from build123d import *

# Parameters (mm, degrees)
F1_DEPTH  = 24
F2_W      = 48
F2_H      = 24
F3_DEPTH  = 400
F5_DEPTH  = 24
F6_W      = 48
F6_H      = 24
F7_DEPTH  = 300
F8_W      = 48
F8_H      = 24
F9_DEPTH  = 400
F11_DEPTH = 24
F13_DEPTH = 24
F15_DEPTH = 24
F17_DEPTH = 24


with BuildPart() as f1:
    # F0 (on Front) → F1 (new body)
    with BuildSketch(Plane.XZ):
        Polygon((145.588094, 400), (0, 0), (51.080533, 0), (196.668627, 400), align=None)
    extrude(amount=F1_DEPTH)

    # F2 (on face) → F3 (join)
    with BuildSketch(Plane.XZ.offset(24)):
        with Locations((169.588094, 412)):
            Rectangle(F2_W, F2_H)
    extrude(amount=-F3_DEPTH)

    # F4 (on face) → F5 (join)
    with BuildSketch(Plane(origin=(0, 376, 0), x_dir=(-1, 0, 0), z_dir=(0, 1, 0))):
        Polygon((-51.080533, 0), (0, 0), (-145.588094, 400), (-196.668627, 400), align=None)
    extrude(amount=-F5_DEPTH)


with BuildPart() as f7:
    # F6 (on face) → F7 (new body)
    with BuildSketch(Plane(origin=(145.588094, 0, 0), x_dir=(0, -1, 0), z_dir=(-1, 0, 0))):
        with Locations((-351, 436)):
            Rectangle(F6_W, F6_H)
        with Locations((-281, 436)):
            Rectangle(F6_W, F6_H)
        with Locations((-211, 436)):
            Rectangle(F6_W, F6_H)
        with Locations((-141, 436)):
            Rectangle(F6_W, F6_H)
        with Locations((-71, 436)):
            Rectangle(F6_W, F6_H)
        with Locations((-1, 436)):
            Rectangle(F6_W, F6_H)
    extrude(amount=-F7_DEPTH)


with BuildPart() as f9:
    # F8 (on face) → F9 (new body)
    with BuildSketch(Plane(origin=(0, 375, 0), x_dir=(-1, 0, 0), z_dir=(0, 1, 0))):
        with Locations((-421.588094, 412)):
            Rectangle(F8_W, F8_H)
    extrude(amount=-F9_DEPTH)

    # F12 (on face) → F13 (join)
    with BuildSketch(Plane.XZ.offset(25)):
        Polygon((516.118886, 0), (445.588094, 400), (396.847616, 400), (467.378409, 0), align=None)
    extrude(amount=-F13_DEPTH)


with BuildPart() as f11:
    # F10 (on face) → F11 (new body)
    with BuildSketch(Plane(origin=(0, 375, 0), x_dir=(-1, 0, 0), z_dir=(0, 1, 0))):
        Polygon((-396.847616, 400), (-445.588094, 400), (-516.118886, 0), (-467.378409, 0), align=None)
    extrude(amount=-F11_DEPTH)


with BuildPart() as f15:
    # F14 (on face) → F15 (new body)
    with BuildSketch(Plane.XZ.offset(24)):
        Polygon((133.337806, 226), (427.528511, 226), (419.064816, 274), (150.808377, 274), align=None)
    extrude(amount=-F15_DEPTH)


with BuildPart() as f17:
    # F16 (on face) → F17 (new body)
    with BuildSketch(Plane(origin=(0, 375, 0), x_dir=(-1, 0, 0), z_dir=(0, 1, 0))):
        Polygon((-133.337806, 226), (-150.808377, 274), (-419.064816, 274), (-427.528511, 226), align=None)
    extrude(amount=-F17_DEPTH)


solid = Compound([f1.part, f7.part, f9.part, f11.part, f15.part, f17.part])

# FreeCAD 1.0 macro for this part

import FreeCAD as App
import Part
import Sketcher
from FreeCAD import Vector
Q = App.Units.Quantity

doc = App.newDocument("Part")
body = doc.addObject("PartDesign::Body", "Body")

# Sketch on XZ plane
sketch1 = body.newObject("Sketcher::SketchObject", "Sketch")
sketch1.AttachmentSupport = (doc.getObject("XZ_Plane"), [""])
sketch1.MapMode = "FlatFace"
sketch1.addGeometry(Part.LineSegment(Vector(146, 400, 0), Vector(0, 0, 0)), False)
sketch1.addGeometry(Part.LineSegment(Vector(0, 0, 0), Vector(51, 0, 0)), False)
sketch1.addGeometry(Part.LineSegment(Vector(51, 0, 0), Vector(197, 400, 0)), False)
sketch1.addGeometry(Part.LineSegment(Vector(197, 400, 0), Vector(146, 400, 0)), False)
sketch1.addConstraint(Sketcher.Constraint("Coincident", 0, 2, 1, 1))
sketch1.addConstraint(Sketcher.Constraint("Coincident", 1, 2, 2, 1))
sketch1.addConstraint(Sketcher.Constraint("Coincident", 2, 2, 3, 1))
sketch1.addConstraint(Sketcher.Constraint("Coincident", 3, 2, 0, 1))
sketch1.addConstraint(Sketcher.Constraint("Horizontal", 1))
sketch1.addConstraint(Sketcher.Constraint("Horizontal", 3))
sketch1.addConstraint(Sketcher.Constraint("Coincident", 0, 2, -1, 1))
sketch1.addConstraint(Sketcher.Constraint("Parallel", 0, 2))
sketch1.addConstraint(Sketcher.Constraint("Angle", 0, Q("-110 deg")))
sketch1.addConstraint(Sketcher.Constraint("DistanceY", -1, 1, 2, 2, 400.0))
sketch1.addConstraint(Sketcher.Constraint("DistanceX", 1, 1, 1, 2, 51.080533))
pad1 = body.newObject("PartDesign::Pad", "Pad")
pad1.Profile = sketch1
pad1.Length = 24

# Sketch on XZ plane
sketch2 = body.newObject("Sketcher::SketchObject", "Sketch001")
sketch2.AttachmentSupport = (doc.getObject("XZ_Plane"), [""])
sketch2.MapMode = "FlatFace"
sketch2.AttachmentOffset = App.Placement(Vector(0, 0, 24), App.Rotation())
sketch2.addGeometry(Part.LineSegment(Vector(146, 424, 0), Vector(146, 400, 0)), False)
sketch2.addGeometry(Part.LineSegment(Vector(146, 400, 0), Vector(194, 400, 0)), False)
sketch2.addGeometry(Part.LineSegment(Vector(194, 400, 0), Vector(194, 424, 0)), False)
sketch2.addGeometry(Part.LineSegment(Vector(194, 424, 0), Vector(146, 424, 0)), False)
sketch2.addConstraint(Sketcher.Constraint("Coincident", 0, 2, 1, 1))
sketch2.addConstraint(Sketcher.Constraint("Coincident", 1, 2, 2, 1))
sketch2.addConstraint(Sketcher.Constraint("Coincident", 2, 2, 3, 1))
sketch2.addConstraint(Sketcher.Constraint("Coincident", 3, 2, 0, 1))
sketch2.addConstraint(Sketcher.Constraint("Vertical", 0))
sketch2.addConstraint(Sketcher.Constraint("Horizontal", 1))
sketch2.addConstraint(Sketcher.Constraint("Vertical", 2))
sketch2.addConstraint(Sketcher.Constraint("Horizontal", 3))
sketch2.addConstraint(Sketcher.Constraint("DistanceX", 1, 1, 1, 2, 48.0))
sketch2.addConstraint(Sketcher.Constraint("DistanceY", 0, 2, 0, 1, 24.0))
sketch2.addConstraint(Sketcher.Constraint("DistanceY", -1, 1, 0, 2, 400.0))
sketch2.addConstraint(Sketcher.Constraint("DistanceX", -1, 1, 0, 2, 145.588094))
pad2 = body.newObject("PartDesign::Pad", "Pad001")
pad2.Profile = sketch2
pad2.Length = 400
pad2.Reversed = True

# Sketch on XZ plane
sketch3 = body.newObject("Sketcher::SketchObject", "Sketch002")
sketch3.AttachmentSupport = (doc.getObject("XZ_Plane"), [""])
sketch3.MapMode = "FlatFace"
sketch3.AttachmentOffset = App.Placement(Vector(0, 0, -376), App.Rotation())
sketch3.addGeometry(Part.LineSegment(Vector(51, 0, 0), Vector(0, 0, 0)), False)
sketch3.addGeometry(Part.LineSegment(Vector(0, 0, 0), Vector(146, 400, 0)), False)
sketch3.addGeometry(Part.LineSegment(Vector(146, 400, 0), Vector(197, 400, 0)), False)
sketch3.addGeometry(Part.LineSegment(Vector(197, 400, 0), Vector(51, 0, 0)), False)
sketch3.addConstraint(Sketcher.Constraint("Coincident", 0, 2, 1, 1))
sketch3.addConstraint(Sketcher.Constraint("Coincident", 1, 2, 2, 1))
sketch3.addConstraint(Sketcher.Constraint("Coincident", 2, 2, 3, 1))
sketch3.addConstraint(Sketcher.Constraint("Coincident", 3, 2, 0, 1))
sketch3.addConstraint(Sketcher.Constraint("Horizontal", 0))
sketch3.addConstraint(Sketcher.Constraint("Horizontal", 2))
sketch3.addConstraint(Sketcher.Constraint("Coincident", 0, 2, -1, 1))
sketch3.addConstraint(Sketcher.Constraint("Parallel", 1, 3))
sketch3.addConstraint(Sketcher.Constraint("Angle", 1, Q("70 deg")))
sketch3.addConstraint(Sketcher.Constraint("DistanceY", -1, 1, 1, 2, 400.0))
sketch3.addConstraint(Sketcher.Constraint("DistanceX", 0, 2, 0, 1, 51.080533))
pad3 = body.newObject("PartDesign::Pad", "Pad002")
pad3.Profile = sketch3
pad3.Length = 24
body2 = doc.addObject("PartDesign::Body", "Body001")
body2.AllowCompound = True

# Sketch on YZ plane
sketch4 = body2.newObject("Sketcher::SketchObject", "Sketch003")
sketch4.AttachmentSupport = (doc.getObject("YZ_Plane001"), [""])
sketch4.MapMode = "FlatFace"
sketch4.AttachmentOffset = App.Placement(Vector(0, 0, 145.588094), App.Rotation())
sketch4.addGeometry(Part.LineSegment(Vector(375, 448, 0), Vector(375, 424, 0)), False)
sketch4.addGeometry(Part.LineSegment(Vector(375, 424, 0), Vector(327, 424, 0)), False)
sketch4.addGeometry(Part.LineSegment(Vector(327, 424, 0), Vector(327, 448, 0)), False)
sketch4.addGeometry(Part.LineSegment(Vector(327, 448, 0), Vector(375, 448, 0)), False)
sketch4.addGeometry(Part.LineSegment(Vector(305, 448, 0), Vector(305, 424, 0)), False)
sketch4.addGeometry(Part.LineSegment(Vector(305, 424, 0), Vector(257, 424, 0)), False)
sketch4.addGeometry(Part.LineSegment(Vector(257, 424, 0), Vector(257, 448, 0)), False)
sketch4.addGeometry(Part.LineSegment(Vector(257, 448, 0), Vector(305, 448, 0)), False)
sketch4.addGeometry(Part.LineSegment(Vector(235, 448, 0), Vector(235, 424, 0)), False)
sketch4.addGeometry(Part.LineSegment(Vector(235, 424, 0), Vector(187, 424, 0)), False)
sketch4.addGeometry(Part.LineSegment(Vector(187, 424, 0), Vector(187, 448, 0)), False)
sketch4.addGeometry(Part.LineSegment(Vector(187, 448, 0), Vector(235, 448, 0)), False)
sketch4.addGeometry(Part.LineSegment(Vector(165, 448, 0), Vector(165, 424, 0)), False)
sketch4.addGeometry(Part.LineSegment(Vector(165, 424, 0), Vector(117, 424, 0)), False)
sketch4.addGeometry(Part.LineSegment(Vector(117, 424, 0), Vector(117, 448, 0)), False)
sketch4.addGeometry(Part.LineSegment(Vector(117, 448, 0), Vector(165, 448, 0)), False)
sketch4.addGeometry(Part.LineSegment(Vector(95, 448, 0), Vector(95, 424, 0)), False)
sketch4.addGeometry(Part.LineSegment(Vector(95, 424, 0), Vector(47, 424, 0)), False)
sketch4.addGeometry(Part.LineSegment(Vector(47, 424, 0), Vector(47, 448, 0)), False)
sketch4.addGeometry(Part.LineSegment(Vector(47, 448, 0), Vector(95, 448, 0)), False)
sketch4.addGeometry(Part.LineSegment(Vector(25, 448, 0), Vector(25, 424, 0)), False)
sketch4.addGeometry(Part.LineSegment(Vector(25, 424, 0), Vector(-23, 424, 0)), False)
sketch4.addGeometry(Part.LineSegment(Vector(-23, 424, 0), Vector(-23, 448, 0)), False)
sketch4.addGeometry(Part.LineSegment(Vector(-23, 448, 0), Vector(25, 448, 0)), False)
sketch4.addConstraint(Sketcher.Constraint("Coincident", 0, 2, 1, 1))
sketch4.addConstraint(Sketcher.Constraint("Coincident", 1, 2, 2, 1))
sketch4.addConstraint(Sketcher.Constraint("Coincident", 2, 2, 3, 1))
sketch4.addConstraint(Sketcher.Constraint("Coincident", 3, 2, 0, 1))
sketch4.addConstraint(Sketcher.Constraint("Coincident", 4, 2, 5, 1))
sketch4.addConstraint(Sketcher.Constraint("Coincident", 5, 2, 6, 1))
sketch4.addConstraint(Sketcher.Constraint("Coincident", 6, 2, 7, 1))
sketch4.addConstraint(Sketcher.Constraint("Coincident", 7, 2, 4, 1))
sketch4.addConstraint(Sketcher.Constraint("Coincident", 8, 2, 9, 1))
sketch4.addConstraint(Sketcher.Constraint("Coincident", 9, 2, 10, 1))
sketch4.addConstraint(Sketcher.Constraint("Coincident", 10, 2, 11, 1))
sketch4.addConstraint(Sketcher.Constraint("Coincident", 11, 2, 8, 1))
sketch4.addConstraint(Sketcher.Constraint("Coincident", 12, 2, 13, 1))
sketch4.addConstraint(Sketcher.Constraint("Coincident", 13, 2, 14, 1))
sketch4.addConstraint(Sketcher.Constraint("Coincident", 14, 2, 15, 1))
sketch4.addConstraint(Sketcher.Constraint("Coincident", 15, 2, 12, 1))
sketch4.addConstraint(Sketcher.Constraint("Coincident", 16, 2, 17, 1))
sketch4.addConstraint(Sketcher.Constraint("Coincident", 17, 2, 18, 1))
sketch4.addConstraint(Sketcher.Constraint("Coincident", 18, 2, 19, 1))
sketch4.addConstraint(Sketcher.Constraint("Coincident", 19, 2, 16, 1))
sketch4.addConstraint(Sketcher.Constraint("Coincident", 20, 2, 21, 1))
sketch4.addConstraint(Sketcher.Constraint("Coincident", 21, 2, 22, 1))
sketch4.addConstraint(Sketcher.Constraint("Coincident", 22, 2, 23, 1))
sketch4.addConstraint(Sketcher.Constraint("Coincident", 23, 2, 20, 1))
sketch4.addConstraint(Sketcher.Constraint("Vertical", 0))
sketch4.addConstraint(Sketcher.Constraint("Horizontal", 1))
sketch4.addConstraint(Sketcher.Constraint("Vertical", 2))
sketch4.addConstraint(Sketcher.Constraint("Horizontal", 3))
sketch4.addConstraint(Sketcher.Constraint("Vertical", 4))
sketch4.addConstraint(Sketcher.Constraint("Horizontal", 5))
sketch4.addConstraint(Sketcher.Constraint("Vertical", 6))
sketch4.addConstraint(Sketcher.Constraint("Horizontal", 7))
sketch4.addConstraint(Sketcher.Constraint("Vertical", 8))
sketch4.addConstraint(Sketcher.Constraint("Horizontal", 9))
sketch4.addConstraint(Sketcher.Constraint("Vertical", 10))
sketch4.addConstraint(Sketcher.Constraint("Horizontal", 11))
sketch4.addConstraint(Sketcher.Constraint("Vertical", 12))
sketch4.addConstraint(Sketcher.Constraint("Horizontal", 13))
sketch4.addConstraint(Sketcher.Constraint("Vertical", 14))
sketch4.addConstraint(Sketcher.Constraint("Horizontal", 15))
sketch4.addConstraint(Sketcher.Constraint("Vertical", 16))
sketch4.addConstraint(Sketcher.Constraint("Horizontal", 17))
sketch4.addConstraint(Sketcher.Constraint("Vertical", 18))
sketch4.addConstraint(Sketcher.Constraint("Horizontal", 19))
sketch4.addConstraint(Sketcher.Constraint("Vertical", 20))
sketch4.addConstraint(Sketcher.Constraint("Horizontal", 21))
sketch4.addConstraint(Sketcher.Constraint("Vertical", 22))
sketch4.addConstraint(Sketcher.Constraint("Horizontal", 23))
sketch4.addConstraint(Sketcher.Constraint("Horizontal", 1, 2, 4, 2))
sketch4.addConstraint(Sketcher.Constraint("Horizontal", 3, 2, 6, 2))
sketch4.addConstraint(Sketcher.Constraint("Horizontal", 5, 2, 8, 2))
sketch4.addConstraint(Sketcher.Constraint("Horizontal", 7, 2, 10, 2))
sketch4.addConstraint(Sketcher.Constraint("Horizontal", 9, 2, 12, 2))
sketch4.addConstraint(Sketcher.Constraint("Horizontal", 11, 2, 14, 2))
sketch4.addConstraint(Sketcher.Constraint("Horizontal", 13, 2, 16, 2))
sketch4.addConstraint(Sketcher.Constraint("Horizontal", 15, 2, 18, 2))
sketch4.addConstraint(Sketcher.Constraint("Horizontal", 17, 2, 20, 2))
sketch4.addConstraint(Sketcher.Constraint("Horizontal", 19, 2, 22, 2))
sketch4.addConstraint(Sketcher.Constraint("Equal", 3, 5))
sketch4.addConstraint(Sketcher.Constraint("Equal", 7, 9))
sketch4.addConstraint(Sketcher.Constraint("Equal", 11, 13))
sketch4.addConstraint(Sketcher.Constraint("Equal", 15, 17))
sketch4.addConstraint(Sketcher.Constraint("Equal", 19, 21))
sketch4.addConstraint(Sketcher.Constraint("DistanceX", 1, 2, 1, 1, 48.0))
sketch4.addConstraint(Sketcher.Constraint("DistanceY", 0, 2, 0, 1, 24.0))
sketch4.addConstraint(Sketcher.Constraint("DistanceX", -1, 1, 0, 2, 375.0))
sketch4.addConstraint(Sketcher.Constraint("DistanceY", -1, 1, 0, 2, 424.0))
sketch4.addConstraint(Sketcher.Constraint("DistanceX", -1, 1, 4, 2, 305.0))
sketch4.addConstraint(Sketcher.Constraint("DistanceX", -1, 1, 8, 2, 235.0))
sketch4.addConstraint(Sketcher.Constraint("DistanceX", -1, 1, 12, 2, 165.0))
sketch4.addConstraint(Sketcher.Constraint("DistanceX", -1, 1, 16, 2, 95.0))
sketch4.addConstraint(Sketcher.Constraint("DistanceX", -1, 1, 20, 2, 25.0))
pad4 = body2.newObject("PartDesign::Pad", "Pad003")
pad4.Profile = sketch4
pad4.Length = 300
body3 = doc.addObject("PartDesign::Body", "Body002")

# Sketch on XZ plane
sketch5 = body3.newObject("Sketcher::SketchObject", "Sketch004")
sketch5.AttachmentSupport = (doc.getObject("XZ_Plane002"), [""])
sketch5.MapMode = "FlatFace"
sketch5.AttachmentOffset = App.Placement(Vector(0, 0, -375), App.Rotation())
sketch5.addGeometry(Part.LineSegment(Vector(446, 424, 0), Vector(446, 400, 0)), False)
sketch5.addGeometry(Part.LineSegment(Vector(446, 400, 0), Vector(398, 400, 0)), False)
sketch5.addGeometry(Part.LineSegment(Vector(398, 400, 0), Vector(398, 424, 0)), False)
sketch5.addGeometry(Part.LineSegment(Vector(398, 424, 0), Vector(446, 424, 0)), False)
sketch5.addConstraint(Sketcher.Constraint("Coincident", 0, 2, 1, 1))
sketch5.addConstraint(Sketcher.Constraint("Coincident", 1, 2, 2, 1))
sketch5.addConstraint(Sketcher.Constraint("Coincident", 2, 2, 3, 1))
sketch5.addConstraint(Sketcher.Constraint("Coincident", 3, 2, 0, 1))
sketch5.addConstraint(Sketcher.Constraint("Vertical", 0))
sketch5.addConstraint(Sketcher.Constraint("Horizontal", 1))
sketch5.addConstraint(Sketcher.Constraint("Vertical", 2))
sketch5.addConstraint(Sketcher.Constraint("Horizontal", 3))
sketch5.addConstraint(Sketcher.Constraint("DistanceX", 1, 2, 1, 1, 48.0))
sketch5.addConstraint(Sketcher.Constraint("DistanceY", 0, 2, 0, 1, 24.0))
sketch5.addConstraint(Sketcher.Constraint("DistanceY", -1, 1, 0, 2, 400.0))
sketch5.addConstraint(Sketcher.Constraint("DistanceX", -1, 1, 0, 2, 445.588094))
pad5 = body3.newObject("PartDesign::Pad", "Pad004")
pad5.Profile = sketch5
pad5.Length = 400

# Sketch on XZ plane
sketch6 = body3.newObject("Sketcher::SketchObject", "Sketch005")
sketch6.AttachmentSupport = (doc.getObject("XZ_Plane002"), [""])
sketch6.MapMode = "FlatFace"
sketch6.AttachmentOffset = App.Placement(Vector(0, 0, 25), App.Rotation())
sketch6.addGeometry(Part.LineSegment(Vector(516, 0, 0), Vector(446, 400, 0)), False)
sketch6.addGeometry(Part.LineSegment(Vector(446, 400, 0), Vector(397, 400, 0)), False)
sketch6.addGeometry(Part.LineSegment(Vector(397, 400, 0), Vector(467, 0, 0)), False)
sketch6.addGeometry(Part.LineSegment(Vector(467, 0, 0), Vector(516, 0, 0)), False)
sketch6.addConstraint(Sketcher.Constraint("Coincident", 0, 2, 1, 1))
sketch6.addConstraint(Sketcher.Constraint("Coincident", 1, 2, 2, 1))
sketch6.addConstraint(Sketcher.Constraint("Coincident", 2, 2, 3, 1))
sketch6.addConstraint(Sketcher.Constraint("Coincident", 3, 2, 0, 1))
sketch6.addConstraint(Sketcher.Constraint("Horizontal", 1))
sketch6.addConstraint(Sketcher.Constraint("Horizontal", 3))
sketch6.addConstraint(Sketcher.Constraint("PointOnObject", 2, 2, -1))
sketch6.addConstraint(Sketcher.Constraint("Parallel", 0, 2))
sketch6.addConstraint(Sketcher.Constraint("Angle", 0, Q("100 deg")))
sketch6.addConstraint(Sketcher.Constraint("DistanceY", -1, 1, 0, 2, 400.0))
sketch6.addConstraint(Sketcher.Constraint("DistanceX", 1, 2, 1, 1, 48.740478))
sketch6.addConstraint(Sketcher.Constraint("DistanceX", -1, 1, 2, 2, 467.378409))
pad6 = body3.newObject("PartDesign::Pad", "Pad005")
pad6.Profile = sketch6
pad6.Length = 24
pad6.Reversed = True
body4 = doc.addObject("PartDesign::Body", "Body003")

# Sketch on XZ plane
sketch7 = body4.newObject("Sketcher::SketchObject", "Sketch006")
sketch7.AttachmentSupport = (doc.getObject("XZ_Plane003"), [""])
sketch7.MapMode = "FlatFace"
sketch7.AttachmentOffset = App.Placement(Vector(0, 0, -375), App.Rotation())
sketch7.addGeometry(Part.LineSegment(Vector(397, 400, 0), Vector(446, 400, 0)), False)
sketch7.addGeometry(Part.LineSegment(Vector(446, 400, 0), Vector(516, 0, 0)), False)
sketch7.addGeometry(Part.LineSegment(Vector(516, 0, 0), Vector(467, 0, 0)), False)
sketch7.addGeometry(Part.LineSegment(Vector(467, 0, 0), Vector(397, 400, 0)), False)
sketch7.addConstraint(Sketcher.Constraint("Coincident", 0, 2, 1, 1))
sketch7.addConstraint(Sketcher.Constraint("Coincident", 1, 2, 2, 1))
sketch7.addConstraint(Sketcher.Constraint("Coincident", 2, 2, 3, 1))
sketch7.addConstraint(Sketcher.Constraint("Coincident", 3, 2, 0, 1))
sketch7.addConstraint(Sketcher.Constraint("Horizontal", 0))
sketch7.addConstraint(Sketcher.Constraint("Horizontal", 2))
sketch7.addConstraint(Sketcher.Constraint("PointOnObject", 1, 2, -1))
sketch7.addConstraint(Sketcher.Constraint("Parallel", 1, 3))
sketch7.addConstraint(Sketcher.Constraint("Angle", 1, Q("-80 deg")))
sketch7.addConstraint(Sketcher.Constraint("DistanceY", -1, 1, 0, 2, 400.0))
sketch7.addConstraint(Sketcher.Constraint("DistanceX", 0, 1, 0, 2, 48.740478))
sketch7.addConstraint(Sketcher.Constraint("DistanceX", -1, 1, 2, 2, 467.378409))
pad7 = body4.newObject("PartDesign::Pad", "Pad006")
pad7.Profile = sketch7
pad7.Length = 24
body5 = doc.addObject("PartDesign::Body", "Body004")

# Sketch on XZ plane
sketch8 = body5.newObject("Sketcher::SketchObject", "Sketch007")
sketch8.AttachmentSupport = (doc.getObject("XZ_Plane004"), [""])
sketch8.MapMode = "FlatFace"
sketch8.AttachmentOffset = App.Placement(Vector(0, 0, 24), App.Rotation())
sketch8.addGeometry(Part.LineSegment(Vector(133, 226, 0), Vector(428, 226, 0)), False)
sketch8.addGeometry(Part.LineSegment(Vector(428, 226, 0), Vector(419, 274, 0)), False)
sketch8.addGeometry(Part.LineSegment(Vector(419, 274, 0), Vector(151, 274, 0)), False)
sketch8.addGeometry(Part.LineSegment(Vector(151, 274, 0), Vector(133, 226, 0)), False)
sketch8.addConstraint(Sketcher.Constraint("Coincident", 0, 2, 1, 1))
sketch8.addConstraint(Sketcher.Constraint("Coincident", 1, 2, 2, 1))
sketch8.addConstraint(Sketcher.Constraint("Coincident", 2, 2, 3, 1))
sketch8.addConstraint(Sketcher.Constraint("Coincident", 3, 2, 0, 1))
sketch8.addConstraint(Sketcher.Constraint("Horizontal", 0))
sketch8.addConstraint(Sketcher.Constraint("Horizontal", 2))
sketch8.addConstraint(Sketcher.Constraint("Angle", 1, Q("100 deg")))
sketch8.addConstraint(Sketcher.Constraint("Angle", 3, Q("-110 deg")))
sketch8.addConstraint(Sketcher.Constraint("DistanceY", -1, 1, 0, 2, 226.0))
sketch8.addConstraint(Sketcher.Constraint("DistanceY", -1, 1, 1, 2, 274.0))
sketch8.addConstraint(Sketcher.Constraint("DistanceX", 2, 2, 2, 1, 268.256439))
sketch8.addConstraint(Sketcher.Constraint("DistanceX", -1, 1, 0, 2, 427.528511))
pad8 = body5.newObject("PartDesign::Pad", "Pad007")
pad8.Profile = sketch8
pad8.Length = 24
pad8.Reversed = True
body6 = doc.addObject("PartDesign::Body", "Body005")

# Sketch on XZ plane
sketch9 = body6.newObject("Sketcher::SketchObject", "Sketch008")
sketch9.AttachmentSupport = (doc.getObject("XZ_Plane005"), [""])
sketch9.MapMode = "FlatFace"
sketch9.AttachmentOffset = App.Placement(Vector(0, 0, -375), App.Rotation())
sketch9.addGeometry(Part.LineSegment(Vector(133, 226, 0), Vector(151, 274, 0)), False)
sketch9.addGeometry(Part.LineSegment(Vector(151, 274, 0), Vector(419, 274, 0)), False)
sketch9.addGeometry(Part.LineSegment(Vector(419, 274, 0), Vector(428, 226, 0)), False)
sketch9.addGeometry(Part.LineSegment(Vector(428, 226, 0), Vector(133, 226, 0)), False)
sketch9.addConstraint(Sketcher.Constraint("Coincident", 0, 2, 1, 1))
sketch9.addConstraint(Sketcher.Constraint("Coincident", 1, 2, 2, 1))
sketch9.addConstraint(Sketcher.Constraint("Coincident", 2, 2, 3, 1))
sketch9.addConstraint(Sketcher.Constraint("Coincident", 3, 2, 0, 1))
sketch9.addConstraint(Sketcher.Constraint("Horizontal", 1))
sketch9.addConstraint(Sketcher.Constraint("Horizontal", 3))
sketch9.addConstraint(Sketcher.Constraint("Angle", 0, Q("70 deg")))
sketch9.addConstraint(Sketcher.Constraint("Angle", 2, Q("-80 deg")))
sketch9.addConstraint(Sketcher.Constraint("DistanceY", -1, 1, 0, 2, 274.0))
sketch9.addConstraint(Sketcher.Constraint("DistanceY", -1, 1, 2, 2, 226.0))
sketch9.addConstraint(Sketcher.Constraint("DistanceX", 1, 1, 1, 2, 268.256439))
sketch9.addConstraint(Sketcher.Constraint("DistanceX", -1, 1, 2, 2, 427.528511))
pad9 = body6.newObject("PartDesign::Pad", "Pad008")
pad9.Profile = sketch9
pad9.Length = 24

doc.recompute()
